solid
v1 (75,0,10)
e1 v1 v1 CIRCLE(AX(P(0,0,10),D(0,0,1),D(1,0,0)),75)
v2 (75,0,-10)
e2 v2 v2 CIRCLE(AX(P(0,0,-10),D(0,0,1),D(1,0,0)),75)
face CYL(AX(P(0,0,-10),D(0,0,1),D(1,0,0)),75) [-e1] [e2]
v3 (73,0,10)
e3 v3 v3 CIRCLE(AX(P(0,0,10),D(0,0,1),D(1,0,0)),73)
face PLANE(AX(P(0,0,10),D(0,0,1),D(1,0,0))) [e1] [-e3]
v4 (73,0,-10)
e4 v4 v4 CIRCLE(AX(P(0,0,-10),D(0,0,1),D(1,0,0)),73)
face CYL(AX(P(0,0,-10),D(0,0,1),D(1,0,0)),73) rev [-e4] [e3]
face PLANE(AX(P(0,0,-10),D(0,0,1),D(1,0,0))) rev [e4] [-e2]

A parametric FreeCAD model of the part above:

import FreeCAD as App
import Part
import Sketcher

V = App.Vector
Q = App.Units.Quantity

doc = App.newDocument("Part")
params = doc.addObject("Spreadsheet::Sheet", "Params")
for row, (alias, value) in enumerate([
    ("sketch1_diameter", "150 mm"),
    ("sketch1_diameter2", "146 mm"),
    ("pad1_length", "10 mm"),
    ("pad1_length2", "10 mm"),
], start=1):
    params.set(f"A{row}", alias)
    params.set(f"B{row}", "=" + value)
    params.setAlias(f"B{row}", alias)

body = doc.addObject("PartDesign::Body", "Body")

# Sketch on XY plane
sketch1 = body.newObject("Sketcher::SketchObject", "Sketch")
sketch1.AttachmentSupport = (doc.getObject("XY_Plane"), [""])
sketch1.MapMode = "FlatFace"
sketch1.addGeometry(Part.Circle(V(0, 0, 0), V(0, 0, 1), 75), False)
sketch1.addGeometry(Part.Circle(V(0, 0, 0), V(0, 0, 1), 73), False)
sketch1.addConstraint(Sketcher.Constraint("Coincident", 0, 3, -1, 1))
sketch1.addConstraint(Sketcher.Constraint("Coincident", 1, 3, -1, 1))
sketch1.addConstraint(Sketcher.Constraint("Diameter", 0, Q("150 mm")))
sketch1.addConstraint(Sketcher.Constraint("Diameter", 1, Q("146 mm")))
sketch1.setExpression("Constraints[2]", "Params.sketch1_diameter")
sketch1.setExpression("Constraints[3]", "Params.sketch1_diameter2")
pad1 = body.newObject("PartDesign::Pad", "Pad")
pad1.Profile = sketch1
pad1.Type = "TwoLengths"
pad1.setExpression("Length", "Params.pad1_length")
pad1.setExpression("Length2", "Params.pad1_length2")

doc.recompute()
